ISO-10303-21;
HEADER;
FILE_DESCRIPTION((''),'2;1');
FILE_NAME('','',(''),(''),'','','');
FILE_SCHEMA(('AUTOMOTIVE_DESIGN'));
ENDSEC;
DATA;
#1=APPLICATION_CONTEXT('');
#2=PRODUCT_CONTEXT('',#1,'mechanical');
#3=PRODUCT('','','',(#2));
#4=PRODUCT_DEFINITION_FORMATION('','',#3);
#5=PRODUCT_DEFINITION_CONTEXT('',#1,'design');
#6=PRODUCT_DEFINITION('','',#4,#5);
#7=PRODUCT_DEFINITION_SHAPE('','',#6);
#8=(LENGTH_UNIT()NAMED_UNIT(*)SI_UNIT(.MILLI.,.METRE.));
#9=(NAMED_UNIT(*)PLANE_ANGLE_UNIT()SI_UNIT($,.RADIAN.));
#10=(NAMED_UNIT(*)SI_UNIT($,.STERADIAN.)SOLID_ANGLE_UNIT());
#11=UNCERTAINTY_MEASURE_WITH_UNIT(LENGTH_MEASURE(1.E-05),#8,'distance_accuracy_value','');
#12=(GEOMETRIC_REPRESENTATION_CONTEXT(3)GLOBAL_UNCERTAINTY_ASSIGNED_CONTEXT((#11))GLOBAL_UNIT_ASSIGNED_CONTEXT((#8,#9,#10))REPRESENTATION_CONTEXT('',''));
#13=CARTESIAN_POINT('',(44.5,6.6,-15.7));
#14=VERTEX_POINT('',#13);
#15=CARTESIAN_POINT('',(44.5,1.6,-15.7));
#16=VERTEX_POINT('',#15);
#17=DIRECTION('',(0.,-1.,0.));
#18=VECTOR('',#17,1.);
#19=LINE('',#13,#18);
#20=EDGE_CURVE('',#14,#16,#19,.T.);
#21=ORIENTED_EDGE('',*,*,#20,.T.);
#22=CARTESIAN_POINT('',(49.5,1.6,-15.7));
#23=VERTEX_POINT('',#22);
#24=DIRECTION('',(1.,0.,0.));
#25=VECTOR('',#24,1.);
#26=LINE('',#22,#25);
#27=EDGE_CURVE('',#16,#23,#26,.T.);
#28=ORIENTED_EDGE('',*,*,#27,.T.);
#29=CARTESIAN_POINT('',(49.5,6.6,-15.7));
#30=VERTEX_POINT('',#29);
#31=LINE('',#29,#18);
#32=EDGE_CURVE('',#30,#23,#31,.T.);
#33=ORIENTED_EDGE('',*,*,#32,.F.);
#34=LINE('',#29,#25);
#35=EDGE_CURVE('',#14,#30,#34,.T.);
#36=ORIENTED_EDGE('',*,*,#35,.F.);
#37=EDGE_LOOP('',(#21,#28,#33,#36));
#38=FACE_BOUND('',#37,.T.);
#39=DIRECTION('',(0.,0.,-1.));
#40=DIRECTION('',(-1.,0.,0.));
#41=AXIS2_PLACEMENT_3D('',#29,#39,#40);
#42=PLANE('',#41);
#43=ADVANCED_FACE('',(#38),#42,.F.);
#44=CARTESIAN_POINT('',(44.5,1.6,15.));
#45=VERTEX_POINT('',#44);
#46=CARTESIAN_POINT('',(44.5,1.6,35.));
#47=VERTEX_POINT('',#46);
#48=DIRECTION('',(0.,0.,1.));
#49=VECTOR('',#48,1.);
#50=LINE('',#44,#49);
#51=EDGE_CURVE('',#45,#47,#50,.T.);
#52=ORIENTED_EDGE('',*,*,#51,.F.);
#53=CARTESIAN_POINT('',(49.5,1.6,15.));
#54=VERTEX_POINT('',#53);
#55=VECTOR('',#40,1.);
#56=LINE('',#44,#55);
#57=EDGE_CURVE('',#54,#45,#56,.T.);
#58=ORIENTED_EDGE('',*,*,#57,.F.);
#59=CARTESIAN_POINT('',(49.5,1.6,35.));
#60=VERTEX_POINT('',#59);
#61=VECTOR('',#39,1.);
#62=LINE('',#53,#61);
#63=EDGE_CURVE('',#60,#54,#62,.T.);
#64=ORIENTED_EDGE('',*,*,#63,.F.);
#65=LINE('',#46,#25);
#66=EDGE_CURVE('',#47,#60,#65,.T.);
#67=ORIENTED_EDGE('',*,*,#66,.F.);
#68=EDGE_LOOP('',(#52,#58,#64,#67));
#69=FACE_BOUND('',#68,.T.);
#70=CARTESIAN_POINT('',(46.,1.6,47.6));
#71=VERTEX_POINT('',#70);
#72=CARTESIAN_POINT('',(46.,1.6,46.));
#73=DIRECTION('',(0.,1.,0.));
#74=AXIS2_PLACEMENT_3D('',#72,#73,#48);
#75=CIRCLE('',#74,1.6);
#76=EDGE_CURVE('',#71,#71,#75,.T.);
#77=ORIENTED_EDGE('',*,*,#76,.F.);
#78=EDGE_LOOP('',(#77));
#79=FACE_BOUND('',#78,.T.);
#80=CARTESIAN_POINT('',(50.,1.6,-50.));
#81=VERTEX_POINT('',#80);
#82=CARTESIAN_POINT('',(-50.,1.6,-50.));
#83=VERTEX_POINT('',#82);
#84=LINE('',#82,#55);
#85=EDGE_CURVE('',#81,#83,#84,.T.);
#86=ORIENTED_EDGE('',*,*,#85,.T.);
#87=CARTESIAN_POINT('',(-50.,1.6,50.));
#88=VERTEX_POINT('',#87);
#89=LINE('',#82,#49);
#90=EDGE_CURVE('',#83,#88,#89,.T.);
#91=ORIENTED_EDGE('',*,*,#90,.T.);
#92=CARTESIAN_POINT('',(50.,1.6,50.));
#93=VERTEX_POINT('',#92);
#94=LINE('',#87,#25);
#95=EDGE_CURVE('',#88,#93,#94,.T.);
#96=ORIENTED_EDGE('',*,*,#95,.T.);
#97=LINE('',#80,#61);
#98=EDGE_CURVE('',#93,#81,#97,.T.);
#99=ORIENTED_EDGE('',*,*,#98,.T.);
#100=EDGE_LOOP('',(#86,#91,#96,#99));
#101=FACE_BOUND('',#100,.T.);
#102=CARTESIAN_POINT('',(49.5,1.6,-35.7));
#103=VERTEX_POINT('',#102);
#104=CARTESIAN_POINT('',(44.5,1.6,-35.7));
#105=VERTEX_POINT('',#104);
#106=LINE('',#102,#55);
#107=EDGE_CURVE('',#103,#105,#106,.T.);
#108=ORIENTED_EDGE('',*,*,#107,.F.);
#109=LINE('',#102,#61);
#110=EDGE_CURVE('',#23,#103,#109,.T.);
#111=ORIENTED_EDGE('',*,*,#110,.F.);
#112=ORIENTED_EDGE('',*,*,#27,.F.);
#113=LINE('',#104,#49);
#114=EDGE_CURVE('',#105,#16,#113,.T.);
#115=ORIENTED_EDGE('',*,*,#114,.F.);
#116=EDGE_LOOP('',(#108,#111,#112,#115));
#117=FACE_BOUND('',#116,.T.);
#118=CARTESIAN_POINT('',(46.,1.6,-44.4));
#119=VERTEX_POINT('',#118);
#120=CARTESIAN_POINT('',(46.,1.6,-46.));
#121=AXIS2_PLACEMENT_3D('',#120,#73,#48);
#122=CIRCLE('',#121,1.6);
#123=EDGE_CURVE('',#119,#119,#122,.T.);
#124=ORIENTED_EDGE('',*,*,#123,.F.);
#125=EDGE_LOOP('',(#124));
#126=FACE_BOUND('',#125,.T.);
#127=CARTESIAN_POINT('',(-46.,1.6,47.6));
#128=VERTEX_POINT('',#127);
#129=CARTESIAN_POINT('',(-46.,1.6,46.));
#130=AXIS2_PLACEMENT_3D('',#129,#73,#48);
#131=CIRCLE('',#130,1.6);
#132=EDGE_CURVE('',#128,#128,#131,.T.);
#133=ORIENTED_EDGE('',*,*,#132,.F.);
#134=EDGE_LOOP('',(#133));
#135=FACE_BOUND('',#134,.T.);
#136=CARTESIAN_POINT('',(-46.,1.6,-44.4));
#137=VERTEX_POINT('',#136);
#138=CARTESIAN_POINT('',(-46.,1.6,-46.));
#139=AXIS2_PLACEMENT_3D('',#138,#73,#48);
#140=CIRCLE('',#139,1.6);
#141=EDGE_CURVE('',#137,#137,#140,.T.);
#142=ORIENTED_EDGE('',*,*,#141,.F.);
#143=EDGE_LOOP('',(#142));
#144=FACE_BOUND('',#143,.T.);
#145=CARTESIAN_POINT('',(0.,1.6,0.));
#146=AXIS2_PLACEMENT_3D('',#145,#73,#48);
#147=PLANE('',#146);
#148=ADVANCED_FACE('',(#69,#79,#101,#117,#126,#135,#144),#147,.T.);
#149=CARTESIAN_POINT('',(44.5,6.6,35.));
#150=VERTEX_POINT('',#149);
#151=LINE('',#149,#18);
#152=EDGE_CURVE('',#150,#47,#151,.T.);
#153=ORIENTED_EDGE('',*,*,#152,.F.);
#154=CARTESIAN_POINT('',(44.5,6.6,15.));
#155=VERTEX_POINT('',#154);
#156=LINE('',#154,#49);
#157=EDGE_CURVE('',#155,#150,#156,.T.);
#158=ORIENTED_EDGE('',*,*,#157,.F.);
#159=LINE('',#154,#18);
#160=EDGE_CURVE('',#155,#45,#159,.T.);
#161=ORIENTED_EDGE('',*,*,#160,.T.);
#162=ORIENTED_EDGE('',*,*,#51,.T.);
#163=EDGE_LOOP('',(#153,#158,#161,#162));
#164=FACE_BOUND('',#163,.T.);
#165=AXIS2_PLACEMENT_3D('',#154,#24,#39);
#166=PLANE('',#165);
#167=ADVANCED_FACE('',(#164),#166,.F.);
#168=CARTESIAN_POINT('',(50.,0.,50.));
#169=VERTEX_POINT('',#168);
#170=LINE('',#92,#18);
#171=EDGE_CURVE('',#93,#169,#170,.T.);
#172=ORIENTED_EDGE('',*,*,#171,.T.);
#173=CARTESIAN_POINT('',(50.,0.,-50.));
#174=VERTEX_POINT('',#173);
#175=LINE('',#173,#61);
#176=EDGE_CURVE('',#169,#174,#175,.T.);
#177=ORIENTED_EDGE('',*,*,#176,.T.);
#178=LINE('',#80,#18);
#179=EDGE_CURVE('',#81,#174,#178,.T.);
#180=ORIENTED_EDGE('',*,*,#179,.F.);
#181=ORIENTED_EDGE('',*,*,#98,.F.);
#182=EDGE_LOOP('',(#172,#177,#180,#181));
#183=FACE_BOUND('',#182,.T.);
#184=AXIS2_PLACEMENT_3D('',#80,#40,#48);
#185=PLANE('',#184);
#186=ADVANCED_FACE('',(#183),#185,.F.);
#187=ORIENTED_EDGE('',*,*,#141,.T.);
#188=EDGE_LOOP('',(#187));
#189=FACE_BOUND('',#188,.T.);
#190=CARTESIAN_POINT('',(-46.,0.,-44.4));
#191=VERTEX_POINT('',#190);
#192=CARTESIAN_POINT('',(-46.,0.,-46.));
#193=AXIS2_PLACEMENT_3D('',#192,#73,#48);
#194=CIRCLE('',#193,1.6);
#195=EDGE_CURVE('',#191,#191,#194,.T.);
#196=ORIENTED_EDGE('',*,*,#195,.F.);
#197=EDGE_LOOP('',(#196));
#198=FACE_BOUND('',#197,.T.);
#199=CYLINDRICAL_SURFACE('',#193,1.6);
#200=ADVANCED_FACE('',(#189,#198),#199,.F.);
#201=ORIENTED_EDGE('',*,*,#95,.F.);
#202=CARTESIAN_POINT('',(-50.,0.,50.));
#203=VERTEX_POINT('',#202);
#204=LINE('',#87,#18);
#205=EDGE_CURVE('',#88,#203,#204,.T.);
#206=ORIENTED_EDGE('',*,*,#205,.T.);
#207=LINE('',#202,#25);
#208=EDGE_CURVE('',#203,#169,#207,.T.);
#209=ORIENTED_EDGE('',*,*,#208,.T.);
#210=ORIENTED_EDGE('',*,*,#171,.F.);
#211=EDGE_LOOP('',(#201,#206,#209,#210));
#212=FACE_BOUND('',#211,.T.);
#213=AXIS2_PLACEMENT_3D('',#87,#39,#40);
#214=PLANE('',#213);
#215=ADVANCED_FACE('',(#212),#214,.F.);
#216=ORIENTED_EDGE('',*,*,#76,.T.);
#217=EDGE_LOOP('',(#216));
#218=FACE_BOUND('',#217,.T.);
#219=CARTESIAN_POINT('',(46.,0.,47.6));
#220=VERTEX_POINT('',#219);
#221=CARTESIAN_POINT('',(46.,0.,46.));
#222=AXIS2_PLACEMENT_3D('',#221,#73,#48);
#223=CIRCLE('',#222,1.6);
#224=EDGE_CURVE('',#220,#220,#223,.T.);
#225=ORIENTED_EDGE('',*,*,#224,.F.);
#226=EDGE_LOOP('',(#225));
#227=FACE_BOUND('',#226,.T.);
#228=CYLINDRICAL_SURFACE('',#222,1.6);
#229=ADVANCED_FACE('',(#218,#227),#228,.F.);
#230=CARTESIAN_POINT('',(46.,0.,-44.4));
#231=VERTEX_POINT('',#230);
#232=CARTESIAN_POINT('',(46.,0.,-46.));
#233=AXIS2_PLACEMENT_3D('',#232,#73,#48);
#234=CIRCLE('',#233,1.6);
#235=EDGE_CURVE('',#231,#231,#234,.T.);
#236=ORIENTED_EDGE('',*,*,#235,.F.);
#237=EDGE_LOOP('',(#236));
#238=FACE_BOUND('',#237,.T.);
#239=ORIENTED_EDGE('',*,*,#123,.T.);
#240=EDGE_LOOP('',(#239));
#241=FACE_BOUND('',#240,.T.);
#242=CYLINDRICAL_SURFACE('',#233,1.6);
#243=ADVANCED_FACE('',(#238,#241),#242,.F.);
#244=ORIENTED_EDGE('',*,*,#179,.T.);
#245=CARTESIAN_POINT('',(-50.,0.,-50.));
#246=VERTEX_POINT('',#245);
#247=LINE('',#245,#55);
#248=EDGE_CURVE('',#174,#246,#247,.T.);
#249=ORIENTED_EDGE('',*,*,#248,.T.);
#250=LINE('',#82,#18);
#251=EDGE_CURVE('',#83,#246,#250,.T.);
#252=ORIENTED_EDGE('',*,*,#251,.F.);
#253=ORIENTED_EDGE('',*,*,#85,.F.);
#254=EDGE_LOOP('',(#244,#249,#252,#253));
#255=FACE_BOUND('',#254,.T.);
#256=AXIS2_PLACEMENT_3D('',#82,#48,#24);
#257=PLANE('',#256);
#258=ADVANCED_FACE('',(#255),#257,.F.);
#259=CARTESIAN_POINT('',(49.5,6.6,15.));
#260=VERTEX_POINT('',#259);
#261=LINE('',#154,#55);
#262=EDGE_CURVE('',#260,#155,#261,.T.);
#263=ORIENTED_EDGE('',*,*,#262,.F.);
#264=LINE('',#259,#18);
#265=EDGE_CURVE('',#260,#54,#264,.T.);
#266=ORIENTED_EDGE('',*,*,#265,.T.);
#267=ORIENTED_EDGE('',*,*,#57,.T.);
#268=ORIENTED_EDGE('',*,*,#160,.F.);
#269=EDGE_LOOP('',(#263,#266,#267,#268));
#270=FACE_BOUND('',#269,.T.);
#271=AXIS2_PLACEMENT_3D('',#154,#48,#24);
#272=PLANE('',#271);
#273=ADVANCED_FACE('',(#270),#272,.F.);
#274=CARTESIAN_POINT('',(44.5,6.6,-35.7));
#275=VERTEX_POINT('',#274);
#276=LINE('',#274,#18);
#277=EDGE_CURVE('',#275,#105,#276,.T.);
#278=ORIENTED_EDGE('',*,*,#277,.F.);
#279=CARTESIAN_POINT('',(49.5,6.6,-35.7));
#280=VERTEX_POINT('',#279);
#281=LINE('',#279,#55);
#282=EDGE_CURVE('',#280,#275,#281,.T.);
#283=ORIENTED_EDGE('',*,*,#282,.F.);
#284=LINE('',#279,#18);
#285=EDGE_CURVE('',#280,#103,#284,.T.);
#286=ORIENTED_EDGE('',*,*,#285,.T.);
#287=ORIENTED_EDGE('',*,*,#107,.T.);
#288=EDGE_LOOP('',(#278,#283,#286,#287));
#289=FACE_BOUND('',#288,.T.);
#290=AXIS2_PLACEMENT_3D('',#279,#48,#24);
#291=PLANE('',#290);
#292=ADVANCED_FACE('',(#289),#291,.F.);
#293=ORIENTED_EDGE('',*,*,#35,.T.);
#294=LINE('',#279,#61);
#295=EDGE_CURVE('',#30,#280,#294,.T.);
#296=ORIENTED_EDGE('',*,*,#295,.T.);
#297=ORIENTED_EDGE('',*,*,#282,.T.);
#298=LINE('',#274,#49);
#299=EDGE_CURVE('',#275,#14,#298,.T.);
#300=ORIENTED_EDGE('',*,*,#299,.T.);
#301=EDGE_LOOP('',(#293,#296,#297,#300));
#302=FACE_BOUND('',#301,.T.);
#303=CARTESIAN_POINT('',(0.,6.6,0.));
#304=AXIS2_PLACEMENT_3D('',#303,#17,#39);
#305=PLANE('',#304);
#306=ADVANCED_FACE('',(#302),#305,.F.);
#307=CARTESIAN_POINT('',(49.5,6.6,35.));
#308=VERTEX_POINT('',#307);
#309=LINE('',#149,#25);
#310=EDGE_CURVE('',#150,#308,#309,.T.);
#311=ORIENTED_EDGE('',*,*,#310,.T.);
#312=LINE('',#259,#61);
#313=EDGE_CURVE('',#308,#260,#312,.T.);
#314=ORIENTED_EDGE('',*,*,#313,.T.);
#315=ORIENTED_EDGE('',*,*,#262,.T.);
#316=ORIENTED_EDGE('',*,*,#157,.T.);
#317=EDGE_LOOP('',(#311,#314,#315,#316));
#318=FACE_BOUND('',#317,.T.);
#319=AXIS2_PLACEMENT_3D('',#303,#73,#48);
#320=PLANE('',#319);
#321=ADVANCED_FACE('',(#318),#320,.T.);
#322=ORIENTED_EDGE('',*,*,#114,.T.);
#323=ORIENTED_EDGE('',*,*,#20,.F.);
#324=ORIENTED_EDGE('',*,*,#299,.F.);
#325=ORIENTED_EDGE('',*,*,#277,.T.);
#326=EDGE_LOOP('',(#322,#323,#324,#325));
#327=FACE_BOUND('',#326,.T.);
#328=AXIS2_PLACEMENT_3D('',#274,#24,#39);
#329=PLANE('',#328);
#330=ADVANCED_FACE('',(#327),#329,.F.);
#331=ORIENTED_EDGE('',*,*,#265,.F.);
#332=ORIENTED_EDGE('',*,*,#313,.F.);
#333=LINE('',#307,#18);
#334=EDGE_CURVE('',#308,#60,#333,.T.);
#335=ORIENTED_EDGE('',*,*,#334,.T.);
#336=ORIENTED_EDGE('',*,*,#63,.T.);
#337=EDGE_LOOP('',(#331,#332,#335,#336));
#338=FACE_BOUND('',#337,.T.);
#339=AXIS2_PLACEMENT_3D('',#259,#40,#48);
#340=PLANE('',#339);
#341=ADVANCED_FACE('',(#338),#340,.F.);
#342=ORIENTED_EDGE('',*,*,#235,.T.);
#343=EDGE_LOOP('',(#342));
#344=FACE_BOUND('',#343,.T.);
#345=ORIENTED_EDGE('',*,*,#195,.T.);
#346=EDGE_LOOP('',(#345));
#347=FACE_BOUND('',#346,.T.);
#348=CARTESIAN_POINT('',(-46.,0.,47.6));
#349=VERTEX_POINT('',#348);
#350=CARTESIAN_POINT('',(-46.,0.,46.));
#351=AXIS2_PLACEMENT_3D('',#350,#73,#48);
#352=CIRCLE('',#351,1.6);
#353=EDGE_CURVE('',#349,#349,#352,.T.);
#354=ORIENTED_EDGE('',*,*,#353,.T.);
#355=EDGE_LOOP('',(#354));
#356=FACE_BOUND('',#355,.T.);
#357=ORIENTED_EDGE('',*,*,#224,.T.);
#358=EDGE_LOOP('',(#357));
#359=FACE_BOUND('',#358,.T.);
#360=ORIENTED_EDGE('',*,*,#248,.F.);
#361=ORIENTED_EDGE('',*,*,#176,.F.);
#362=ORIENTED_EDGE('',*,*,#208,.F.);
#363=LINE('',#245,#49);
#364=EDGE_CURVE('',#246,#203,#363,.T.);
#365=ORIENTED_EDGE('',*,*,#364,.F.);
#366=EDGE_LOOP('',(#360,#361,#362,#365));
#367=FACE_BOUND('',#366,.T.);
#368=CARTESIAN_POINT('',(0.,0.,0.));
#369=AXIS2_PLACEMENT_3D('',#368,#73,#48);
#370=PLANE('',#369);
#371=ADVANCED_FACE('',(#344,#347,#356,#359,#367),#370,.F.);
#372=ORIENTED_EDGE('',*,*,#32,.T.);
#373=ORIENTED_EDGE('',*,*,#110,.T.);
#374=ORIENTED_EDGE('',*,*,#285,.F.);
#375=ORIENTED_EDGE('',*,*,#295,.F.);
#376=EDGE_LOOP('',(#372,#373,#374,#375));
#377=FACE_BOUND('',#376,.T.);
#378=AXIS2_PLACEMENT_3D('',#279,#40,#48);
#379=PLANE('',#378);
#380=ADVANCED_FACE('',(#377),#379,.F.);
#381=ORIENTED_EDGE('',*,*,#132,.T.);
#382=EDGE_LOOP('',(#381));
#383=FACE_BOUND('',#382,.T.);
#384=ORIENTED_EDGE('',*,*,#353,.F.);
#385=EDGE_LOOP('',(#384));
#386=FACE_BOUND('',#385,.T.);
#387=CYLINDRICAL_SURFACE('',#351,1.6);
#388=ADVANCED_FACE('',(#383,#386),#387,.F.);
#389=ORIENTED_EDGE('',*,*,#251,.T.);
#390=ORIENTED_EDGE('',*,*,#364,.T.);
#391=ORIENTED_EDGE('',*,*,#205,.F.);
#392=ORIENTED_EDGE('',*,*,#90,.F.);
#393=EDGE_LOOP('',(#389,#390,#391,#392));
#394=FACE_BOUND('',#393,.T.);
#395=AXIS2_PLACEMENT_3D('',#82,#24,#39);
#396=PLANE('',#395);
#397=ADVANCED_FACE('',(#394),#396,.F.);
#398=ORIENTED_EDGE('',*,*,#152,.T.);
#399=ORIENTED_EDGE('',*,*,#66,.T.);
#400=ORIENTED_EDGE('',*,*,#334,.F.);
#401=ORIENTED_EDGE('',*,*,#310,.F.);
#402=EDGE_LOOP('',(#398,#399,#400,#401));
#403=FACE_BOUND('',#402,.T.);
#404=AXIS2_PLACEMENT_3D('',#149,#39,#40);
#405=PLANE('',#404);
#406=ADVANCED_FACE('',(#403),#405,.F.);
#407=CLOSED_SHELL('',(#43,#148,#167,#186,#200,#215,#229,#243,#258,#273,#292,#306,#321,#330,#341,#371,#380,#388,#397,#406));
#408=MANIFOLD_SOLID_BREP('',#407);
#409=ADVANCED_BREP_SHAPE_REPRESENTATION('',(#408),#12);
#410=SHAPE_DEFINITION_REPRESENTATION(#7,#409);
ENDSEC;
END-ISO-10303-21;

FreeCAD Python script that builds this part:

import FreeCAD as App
import Part
import Sketcher

V = App.Vector


def add_polygon(sketch, points):
    """Adds a closed chain of lines whose ends are joined by coincident constraints."""
    first, n = sketch.GeometryCount, len(points)
    for a, b in zip(points, points[1:] + points[:1]):
        sketch.addGeometry(Part.LineSegment(App.Vector(*a, 0), App.Vector(*b, 0)), False)
    for i in range(n):
        sketch.addConstraint(Sketcher.Constraint("Coincident", first + i, 2, first + (i + 1) % n, 1))

doc = App.newDocument("Part")
body = doc.addObject("PartDesign::Body", "Body")

# Sketch on XZ plane
sketch1 = doc.addObject("Sketcher::SketchObject", "Sketch")
body.addObject(sketch1)
sketch1.AttachmentSupport = (doc.XZ_Plane, [""])
sketch1.MapMode = "FlatFace"
add_polygon(sketch1, [(-50, -50), (-50, 50), (50, 50), (50, -50)])  # lines 0-3
sketch1.addConstraint([
    Sketcher.Constraint("Vertical", 0),
    Sketcher.Constraint("Horizontal", 1),
    Sketcher.Constraint("Vertical", 2),
    Sketcher.Constraint("Horizontal", 3),
    Sketcher.Constraint("Symmetric", 0, 2, 2, 2, -1, 1),
    Sketcher.Constraint("Equal", 3, 0),
    Sketcher.Constraint("DistanceX", 1, 1, 1, 2, 100.0),
])
pad1 = doc.addObject("PartDesign::Pad", "Pad")
body.addObject(pad1)
pad1.Profile = sketch1
pad1.Length = 1.6
pad1.Reversed = True

# Sketch on XZ plane
sketch2 = doc.addObject("Sketcher::SketchObject", "Sketch001")
body.addObject(sketch2)
sketch2.AttachmentSupport = (doc.XZ_Plane, [""])
sketch2.MapMode = "FlatFace"
sketch2.AttachmentOffset = App.Placement(V(0, 0, -1.6), App.Rotation())
sketch2.addGeometry([
    Part.Circle(V(-46, 46, 0), V(0, 0, 1), 1.6),
    Part.Circle(V(-46, -46, 0), V(0, 0, 1), 1.6),
    Part.Circle(V(46, -46, 0), V(0, 0, 1), 1.6),
    Part.Circle(V(46, 46, 0), V(0, 0, 1), 1.6),
], False)
sketch2.addConstraint([
    Sketcher.Constraint("Equal", 0, 1),
    Sketcher.Constraint("Equal", 1, 2),
    Sketcher.Constraint("Equal", 2, 3),
    Sketcher.Constraint("Symmetric", 0, 3, 2, 3, -1, 1),
    Sketcher.Constraint("Symmetric", 1, 3, 3, 3, -1, 1),
    Sketcher.Constraint("Symmetric", 1, 3, 2, 3, -2),
    Sketcher.Constraint("Diameter", 0, 3.2),
    Sketcher.Constraint("DistanceX", 0, 3, -1, 1, 46.0),
    Sketcher.Constraint("DistanceY", -1, 1, 0, 3, 46.0),
])
pocket1 = doc.addObject("PartDesign::Pocket", "Pocket")
body.addObject(pocket1)
pocket1.Profile = sketch2
pocket1.Type = "ThroughAll"
pocket1.Reversed = True

# Sketch on XZ plane
sketch3 = doc.addObject("Sketcher::SketchObject", "Sketch002")
body.addObject(sketch3)
sketch3.AttachmentSupport = (doc.XZ_Plane, [""])
sketch3.MapMode = "FlatFace"
sketch3.AttachmentOffset = App.Placement(V(0, 0, -1.6), App.Rotation())
add_polygon(sketch3, [(44, 15), (44, 35), (50, 35), (50, 15)])  # lines 0-3
add_polygon(sketch3, [(44, -36), (44, -16), (50, -16), (50, -36)])  # lines 4-7
sketch3.addConstraint([
    Sketcher.Constraint("Vertical", 0),
    Sketcher.Constraint("Horizontal", 1),
    Sketcher.Constraint("Vertical", 2),
    Sketcher.Constraint("Horizontal", 3),
    Sketcher.Constraint("Vertical", 4),
    Sketcher.Constraint("Horizontal", 5),
    Sketcher.Constraint("Vertical", 6),
    Sketcher.Constraint("Horizontal", 7),
    Sketcher.Constraint("Vertical", 3, 2, 4, 2),
    Sketcher.Constraint("Vertical", 2, 2, 5, 2),
    Sketcher.Constraint("Equal", 2, 4),
    Sketcher.Constraint("DistanceX", 1, 1, 1, 2, 5.0),
    Sketcher.Constraint("DistanceY", 0, 1, 0, 2, 20.0),
    Sketcher.Constraint("DistanceY", -1, 1, 0, 2, 35.0),
    Sketcher.Constraint("DistanceX", -1, 1, 0, 2, 44.5),
    Sketcher.Constraint("DistanceY", 4, 2, -1, 1, 15.7),
])
pad2 = doc.addObject("PartDesign::Pad", "Pad001")
body.addObject(pad2)
pad2.Profile = sketch3
pad2.Length = 5
pad2.Reversed = True

doc.recompute()
